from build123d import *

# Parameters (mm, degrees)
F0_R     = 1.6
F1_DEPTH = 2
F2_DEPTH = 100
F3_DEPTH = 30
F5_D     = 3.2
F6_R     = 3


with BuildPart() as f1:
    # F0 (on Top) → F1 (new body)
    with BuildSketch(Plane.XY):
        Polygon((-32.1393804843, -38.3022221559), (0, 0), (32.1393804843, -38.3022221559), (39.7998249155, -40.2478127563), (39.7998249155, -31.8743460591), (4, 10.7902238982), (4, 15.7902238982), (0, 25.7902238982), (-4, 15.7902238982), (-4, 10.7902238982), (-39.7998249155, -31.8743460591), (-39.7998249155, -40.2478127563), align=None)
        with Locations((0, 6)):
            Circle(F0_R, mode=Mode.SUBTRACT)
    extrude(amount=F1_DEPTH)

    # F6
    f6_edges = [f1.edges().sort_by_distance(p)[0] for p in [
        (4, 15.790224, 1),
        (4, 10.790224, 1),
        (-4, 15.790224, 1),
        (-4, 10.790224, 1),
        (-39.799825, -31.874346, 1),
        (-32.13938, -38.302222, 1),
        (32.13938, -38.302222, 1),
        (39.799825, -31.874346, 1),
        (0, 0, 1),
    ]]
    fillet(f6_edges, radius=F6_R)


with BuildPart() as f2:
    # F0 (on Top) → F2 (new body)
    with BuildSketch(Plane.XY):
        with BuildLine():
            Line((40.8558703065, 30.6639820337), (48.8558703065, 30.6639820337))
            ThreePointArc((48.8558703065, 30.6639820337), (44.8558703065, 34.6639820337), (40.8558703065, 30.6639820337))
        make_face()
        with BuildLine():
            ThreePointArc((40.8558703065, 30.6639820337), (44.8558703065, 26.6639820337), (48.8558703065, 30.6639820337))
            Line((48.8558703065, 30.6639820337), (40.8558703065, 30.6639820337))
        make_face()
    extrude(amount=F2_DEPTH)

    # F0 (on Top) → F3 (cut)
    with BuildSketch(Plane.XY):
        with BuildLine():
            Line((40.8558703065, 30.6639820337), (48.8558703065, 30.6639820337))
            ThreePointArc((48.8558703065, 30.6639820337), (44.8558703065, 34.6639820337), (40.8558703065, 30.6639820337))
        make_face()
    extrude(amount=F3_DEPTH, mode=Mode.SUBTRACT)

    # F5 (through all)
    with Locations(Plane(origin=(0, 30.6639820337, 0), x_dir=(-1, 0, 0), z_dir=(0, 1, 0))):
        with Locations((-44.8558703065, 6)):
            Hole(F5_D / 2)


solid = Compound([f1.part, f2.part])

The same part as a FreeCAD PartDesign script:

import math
import FreeCAD as App
import Part
import Sketcher
Q = App.Units.Quantity


def edges_at(feature, points):
    """Names of the edges that pass closest to the given points."""
    edges = feature.Shape.Edges
    near = lambda p: min(range(len(edges)), key=lambda i: edges[i].distToShape(Part.Vertex(*p))[0])
    return sorted({f"Edge{near(p) + 1}" for p in points})


def add_polygon(sketch, points):
    """Adds a closed chain of lines whose ends are joined by coincident constraints."""
    first, n = sketch.GeometryCount, len(points)
    for a, b in zip(points, points[1:] + points[:1]):
        sketch.addGeometry(Part.LineSegment(App.Vector(*a, 0), App.Vector(*b, 0)), False)
    for i in range(n):
        sketch.addConstraint(Sketcher.Constraint("Coincident", first + i, 2, first + (i + 1) % n, 1))

doc = App.newDocument("Part")
body = doc.addObject("PartDesign::Body", "Body")

# Sketch on XY plane
sketch1 = doc.addObject("Sketcher::SketchObject", "Sketch")
body.addObject(sketch1)
sketch1.AttachmentSupport = (doc.XY_Plane, [""])
sketch1.MapMode = "FlatFace"
add_polygon(sketch1, [(-32.1, -38.3), (0, 0), (32.1, -38.3), (39.8, -40.2), (39.8, -31.9), (4, 10.8), (4, 15.8), (0, 25.8), (-4, 15.8), (-4, 10.8), (-39.8, -31.9), (-39.8, -40.2)])  # lines 0-11
sketch1.addGeometry(Part.Circle(App.Vector(0, 6, 0), App.Vector(0, 0, 1), 1.6), False)  # 12
sketch1.addConstraint(Sketcher.Constraint("Vertical", 3))
sketch1.addConstraint(Sketcher.Constraint("Vertical", 5))
sketch1.addConstraint(Sketcher.Constraint("Vertical", 8))
sketch1.addConstraint(Sketcher.Constraint("Vertical", 10))
sketch1.addConstraint(Sketcher.Constraint("Coincident", 0, 2, -1, 1))
sketch1.addConstraint(Sketcher.Constraint("Symmetric", 5, 2, 7, 2, -2))
sketch1.addConstraint(Sketcher.Constraint("Symmetric", 3, 2, 9, 2, -2))
sketch1.addConstraint(Sketcher.Constraint("Symmetric", 1, 2, 11, 2, -2))
sketch1.addConstraint(Sketcher.Constraint("PointOnObject", 12, 3, -2))
sketch1.addConstraint(Sketcher.Constraint("PointOnObject", 6, 2, -2))
sketch1.addConstraint(Sketcher.Constraint("Parallel", 1, 4))
sketch1.addConstraint(Sketcher.Constraint("Parallel", 0, 9))
sketch1.addConstraint(Sketcher.Constraint("Horizontal", 2, 2, 10, 2))
sketch1.addConstraint(Sketcher.Constraint("Diameter", 12, 3.2))
sketch1.addConstraint(Sketcher.Constraint("DistanceY", 5, 1, 5, 2, 5.0))
sketch1.addConstraint(Sketcher.Constraint("Angle", 0, Q("50 deg")))
sketch1.addConstraint(Sketcher.Constraint("Distance", 0, 50.0))
sketch1.addConstraint(Sketcher.Constraint("DistanceY", -1, 1, 12, 3, 6.0))
sketch1.addConstraint(Sketcher.Constraint("DistanceX", -1, 1, 4, 2, 4.0))
sketch1.addConstraint(Sketcher.Constraint("DistanceY", 5, 2, 6, 2, 10.0))
sketch1.addConstraint(Sketcher.Constraint("Distance", 4, 55.694641))
sketch1.addConstraint(Sketcher.Constraint("DistanceY", 3, 1, 3, 2, 8.373467))
sketch1.addConstraint(Sketcher.Constraint("DistanceY", 2, 2, 1, 2, 1.945591))
pad1 = doc.addObject("PartDesign::Pad", "Pad")
body.addObject(pad1)
pad1.Profile = sketch1
pad1.Length = 2
doc.recompute()

fillet = doc.addObject("PartDesign::Fillet", "Fillet")
body.addObject(fillet)
fillet.Base = (pad1, edges_at(pad1, [
    (4, 15.79, 1),
    (4, 10.79, 1),
    (-4, 15.79, 1),
    (-4, 10.79, 1),
    (-39.8, -31.874, 1),
    (-32.139, -38.302, 1),
    (32.139, -38.302, 1),
    (39.8, -31.874, 1),
    (0, 0, 1),
]))
fillet.Radius = 3
body2 = doc.addObject("PartDesign::Body", "Body001")

# Sketch on XY plane
sketch2 = doc.addObject("Sketcher::SketchObject", "Sketch001")
body2.addObject(sketch2)
sketch2.AttachmentSupport = (doc.getObject("XY_Plane001"), [""])
sketch2.MapMode = "FlatFace"
sketch2.addGeometry(Part.Circle(App.Vector(44.9, 30.7, 0), App.Vector(0, 0, 1), 4), False)
sketch2.addConstraint(Sketcher.Constraint("Diameter", 0, 8.0))
sketch2.addConstraint(Sketcher.Constraint("DistanceX", -1, 1, 0, 3, 44.85587))
sketch2.addConstraint(Sketcher.Constraint("DistanceY", -1, 1, 0, 3, 30.663982))
pad2 = doc.addObject("PartDesign::Pad", "Pad001")
body2.addObject(pad2)
pad2.Profile = sketch2
pad2.Length = 100

# Sketch on XY plane
sketch3 = doc.addObject("Sketcher::SketchObject", "Sketch002")
body2.addObject(sketch3)
sketch3.AttachmentSupport = (doc.getObject("XY_Plane001"), [""])
sketch3.MapMode = "FlatFace"
sketch3.addGeometry(Part.LineSegment(App.Vector(40.9, 30.7, 0), App.Vector(48.9, 30.7, 0)), False)
sketch3.addGeometry(Part.ArcOfCircle(Part.Circle(App.Vector(44.9, 30.7, 0), App.Vector(0, 0, 1), 4), math.radians(0), math.radians(180)), False)
sketch3.addConstraint(Sketcher.Constraint("Coincident", 0, 1, 1, 2))
sketch3.addConstraint(Sketcher.Constraint("Coincident", 1, 1, 0, 2))
sketch3.addConstraint(Sketcher.Constraint("Horizontal", 0))
sketch3.addConstraint(Sketcher.Constraint("Horizontal", 1, 3, 0, 1))
sketch3.addConstraint(Sketcher.Constraint("Radius", 1, 4.0))
sketch3.addConstraint(Sketcher.Constraint("DistanceX", -1, 1, 1, 3, 44.85587))
sketch3.addConstraint(Sketcher.Constraint("DistanceY", -1, 1, 1, 3, 30.663982))
pocket1 = doc.addObject("PartDesign::Pocket", "Pocket")
body2.addObject(pocket1)
pocket1.Profile = sketch3
pocket1.Length = 30
pocket1.Reversed = True

# Sketch on XZ plane
sketch4 = doc.addObject("Sketcher::SketchObject", "Sketch003")
body2.addObject(sketch4)
sketch4.AttachmentSupport = (doc.getObject("XZ_Plane001"), [""])
sketch4.MapMode = "FlatFace"
sketch4.AttachmentOffset = App.Placement(App.Vector(0, 0, -30.663982), App.Rotation())
sketch4.addGeometry(Part.Circle(App.Vector(44.9, 6, 0), App.Vector(0, 0, 1), 1.6), False)
sketch4.addConstraint(Sketcher.Constraint("Diameter", 0, 3.2))
sketch4.addConstraint(Sketcher.Constraint("DistanceY", -1, 1, 0, 3, 6.0))
sketch4.addConstraint(Sketcher.Constraint("DistanceX", -1, 1, 0, 3, 44.85587))
doc.recompute()
hole = doc.addObject("PartDesign::Hole", "Hole")
body2.addObject(hole)
hole.Profile = sketch4
hole.ThreadType = "None"
hole.Diameter = 3.2
hole.DepthType = "ThroughAll"
hole.Reversed = True

doc.recompute()
